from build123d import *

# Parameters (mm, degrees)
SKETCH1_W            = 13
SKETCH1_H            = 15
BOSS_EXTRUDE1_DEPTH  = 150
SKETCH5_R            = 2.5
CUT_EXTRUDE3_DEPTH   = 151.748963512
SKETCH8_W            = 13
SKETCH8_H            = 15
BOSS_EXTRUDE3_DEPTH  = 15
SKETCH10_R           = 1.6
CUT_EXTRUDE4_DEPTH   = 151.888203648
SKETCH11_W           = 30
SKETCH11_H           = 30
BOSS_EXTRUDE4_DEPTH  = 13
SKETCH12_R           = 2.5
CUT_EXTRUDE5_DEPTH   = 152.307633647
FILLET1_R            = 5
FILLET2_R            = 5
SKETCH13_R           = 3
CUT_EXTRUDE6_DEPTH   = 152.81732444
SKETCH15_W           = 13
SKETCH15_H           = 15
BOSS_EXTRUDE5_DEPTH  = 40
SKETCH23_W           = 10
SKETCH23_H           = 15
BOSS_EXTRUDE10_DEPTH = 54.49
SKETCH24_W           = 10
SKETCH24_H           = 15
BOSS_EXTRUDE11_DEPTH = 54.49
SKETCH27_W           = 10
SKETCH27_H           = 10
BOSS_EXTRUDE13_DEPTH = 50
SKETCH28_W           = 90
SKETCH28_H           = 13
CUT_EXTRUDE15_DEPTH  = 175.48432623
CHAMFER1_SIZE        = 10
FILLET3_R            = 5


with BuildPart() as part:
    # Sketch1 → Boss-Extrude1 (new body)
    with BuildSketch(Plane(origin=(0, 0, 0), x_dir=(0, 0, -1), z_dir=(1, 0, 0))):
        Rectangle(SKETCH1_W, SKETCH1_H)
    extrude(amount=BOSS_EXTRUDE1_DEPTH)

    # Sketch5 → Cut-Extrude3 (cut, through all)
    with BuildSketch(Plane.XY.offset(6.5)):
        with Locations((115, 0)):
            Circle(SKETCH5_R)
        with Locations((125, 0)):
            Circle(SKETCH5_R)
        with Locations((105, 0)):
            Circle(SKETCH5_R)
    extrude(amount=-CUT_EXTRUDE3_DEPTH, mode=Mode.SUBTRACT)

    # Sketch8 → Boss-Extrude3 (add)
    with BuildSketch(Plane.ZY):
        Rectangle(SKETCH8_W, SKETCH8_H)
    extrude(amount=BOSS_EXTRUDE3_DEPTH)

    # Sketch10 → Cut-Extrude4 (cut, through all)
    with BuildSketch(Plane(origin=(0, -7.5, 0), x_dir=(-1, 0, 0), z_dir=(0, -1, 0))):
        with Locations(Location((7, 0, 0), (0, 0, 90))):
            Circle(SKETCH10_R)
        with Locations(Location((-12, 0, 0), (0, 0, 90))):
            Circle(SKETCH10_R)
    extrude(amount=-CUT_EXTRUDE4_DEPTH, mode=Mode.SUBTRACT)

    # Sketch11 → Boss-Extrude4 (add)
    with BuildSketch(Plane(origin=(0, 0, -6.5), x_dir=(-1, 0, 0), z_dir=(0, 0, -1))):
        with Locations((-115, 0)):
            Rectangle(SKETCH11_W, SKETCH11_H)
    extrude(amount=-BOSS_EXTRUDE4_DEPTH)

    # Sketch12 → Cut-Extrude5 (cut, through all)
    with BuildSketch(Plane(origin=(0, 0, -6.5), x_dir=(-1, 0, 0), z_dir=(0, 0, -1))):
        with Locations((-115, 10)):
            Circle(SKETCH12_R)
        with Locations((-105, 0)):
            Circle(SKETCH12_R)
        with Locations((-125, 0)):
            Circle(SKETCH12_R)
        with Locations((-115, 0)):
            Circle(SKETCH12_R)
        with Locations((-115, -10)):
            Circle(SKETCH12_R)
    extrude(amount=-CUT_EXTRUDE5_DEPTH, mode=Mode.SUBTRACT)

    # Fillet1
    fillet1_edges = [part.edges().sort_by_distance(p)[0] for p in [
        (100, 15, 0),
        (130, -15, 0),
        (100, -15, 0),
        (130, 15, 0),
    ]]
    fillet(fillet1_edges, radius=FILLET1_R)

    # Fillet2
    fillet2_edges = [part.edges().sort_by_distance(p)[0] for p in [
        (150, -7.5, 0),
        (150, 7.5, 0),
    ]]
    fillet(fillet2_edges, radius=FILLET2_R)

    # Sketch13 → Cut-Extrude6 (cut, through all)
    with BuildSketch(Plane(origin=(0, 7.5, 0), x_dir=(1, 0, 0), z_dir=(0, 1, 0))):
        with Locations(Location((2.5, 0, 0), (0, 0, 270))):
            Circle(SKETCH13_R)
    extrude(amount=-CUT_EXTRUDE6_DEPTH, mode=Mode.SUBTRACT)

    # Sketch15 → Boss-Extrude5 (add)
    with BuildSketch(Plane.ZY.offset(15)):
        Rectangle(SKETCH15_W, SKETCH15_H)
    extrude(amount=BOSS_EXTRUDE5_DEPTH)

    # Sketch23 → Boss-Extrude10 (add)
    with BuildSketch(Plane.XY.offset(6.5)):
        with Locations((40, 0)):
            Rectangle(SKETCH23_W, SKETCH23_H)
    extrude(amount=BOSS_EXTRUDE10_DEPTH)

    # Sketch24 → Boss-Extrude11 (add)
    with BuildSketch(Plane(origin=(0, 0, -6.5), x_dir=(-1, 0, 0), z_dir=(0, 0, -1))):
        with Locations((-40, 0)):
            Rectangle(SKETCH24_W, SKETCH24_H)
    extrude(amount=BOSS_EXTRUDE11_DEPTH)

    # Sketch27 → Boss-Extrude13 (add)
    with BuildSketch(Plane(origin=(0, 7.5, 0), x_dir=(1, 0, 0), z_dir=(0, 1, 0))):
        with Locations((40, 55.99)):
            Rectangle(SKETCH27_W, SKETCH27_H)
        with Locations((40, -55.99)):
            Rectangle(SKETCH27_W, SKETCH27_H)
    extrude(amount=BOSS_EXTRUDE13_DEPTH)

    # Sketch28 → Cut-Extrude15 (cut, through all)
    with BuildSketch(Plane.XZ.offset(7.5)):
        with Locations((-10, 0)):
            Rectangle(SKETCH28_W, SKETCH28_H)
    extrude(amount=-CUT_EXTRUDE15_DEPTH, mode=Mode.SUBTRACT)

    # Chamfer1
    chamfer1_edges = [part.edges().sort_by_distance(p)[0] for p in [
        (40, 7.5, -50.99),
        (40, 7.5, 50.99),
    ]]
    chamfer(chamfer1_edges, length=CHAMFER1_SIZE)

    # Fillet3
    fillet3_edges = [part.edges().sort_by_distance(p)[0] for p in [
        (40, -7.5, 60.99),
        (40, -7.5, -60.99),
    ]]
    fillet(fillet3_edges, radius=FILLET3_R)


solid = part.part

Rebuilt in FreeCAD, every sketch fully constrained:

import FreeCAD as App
import Part
import Sketcher

V = App.Vector


def edges_at(feature, points):
    """Names of the edges that pass closest to the given points."""
    edges = feature.Shape.Edges
    near = lambda p: min(range(len(edges)), key=lambda i: edges[i].distToShape(Part.Vertex(*p))[0])
    return sorted({f"Edge{near(p) + 1}" for p in points})


def add_polygon(sketch, points):
    """Adds a closed chain of lines whose ends are joined by coincident constraints."""
    first, n = sketch.GeometryCount, len(points)
    for a, b in zip(points, points[1:] + points[:1]):
        sketch.addGeometry(Part.LineSegment(App.Vector(*a, 0), App.Vector(*b, 0)), False)
    for i in range(n):
        sketch.addConstraint(Sketcher.Constraint("Coincident", first + i, 2, first + (i + 1) % n, 1))

doc = App.newDocument("Part")
body = doc.addObject("PartDesign::Body", "Body")

# Sketch on YZ plane
sketch1 = doc.addObject("Sketcher::SketchObject", "Sketch")
body.addObject(sketch1)
sketch1.AttachmentSupport = (doc.YZ_Plane, [""])
sketch1.MapMode = "FlatFace"
add_polygon(sketch1, [(7.5, 6.5), (-7.5, 6.5), (-7.5, -6.5), (7.5, -6.5)])  # lines 0-3
sketch1.addConstraint(Sketcher.Constraint("Horizontal", 0))
sketch1.addConstraint(Sketcher.Constraint("Vertical", 1))
sketch1.addConstraint(Sketcher.Constraint("Horizontal", 2))
sketch1.addConstraint(Sketcher.Constraint("Vertical", 3))
sketch1.addConstraint(Sketcher.Constraint("Symmetric", 0, 2, 2, 2, -1, 1))
sketch1.addConstraint(Sketcher.Constraint("DistanceX", 0, 2, 0, 1, 15.0))
sketch1.addConstraint(Sketcher.Constraint("DistanceY", 1, 2, 1, 1, 13.0))
pad1 = doc.addObject("PartDesign::Pad", "Pad")
body.addObject(pad1)
pad1.Profile = sketch1
pad1.Length = 150

# Sketch on XY plane
sketch2 = doc.addObject("Sketcher::SketchObject", "Sketch001")
body.addObject(sketch2)
sketch2.AttachmentSupport = (doc.XY_Plane, [""])
sketch2.MapMode = "FlatFace"
sketch2.AttachmentOffset = App.Placement(V(0, 0, 6.5), App.Rotation())
sketch2.addGeometry(Part.Circle(V(115, 0, 0), V(0, 0, 1), 2.5), False)
sketch2.addGeometry(Part.Circle(V(125, 0, 0), V(0, 0, 1), 2.5), False)
sketch2.addGeometry(Part.Circle(V(105, 0, 0), V(0, 0, 1), 2.5), False)
sketch2.addConstraint(Sketcher.Constraint("Equal", 0, 1))
sketch2.addConstraint(Sketcher.Constraint("Equal", 1, 2))
sketch2.addConstraint(Sketcher.Constraint("PointOnObject", 0, 3, -1))
sketch2.addConstraint(Sketcher.Constraint("PointOnObject", 1, 3, -1))
sketch2.addConstraint(Sketcher.Constraint("PointOnObject", 2, 3, -1))
sketch2.addConstraint(Sketcher.Constraint("Diameter", 0, 5.0))
sketch2.addConstraint(Sketcher.Constraint("DistanceX", -1, 1, 0, 3, 115.0))
sketch2.addConstraint(Sketcher.Constraint("DistanceX", -1, 1, 1, 3, 125.0))
sketch2.addConstraint(Sketcher.Constraint("DistanceX", -1, 1, 2, 3, 105.0))
pocket1 = doc.addObject("PartDesign::Pocket", "Pocket")
body.addObject(pocket1)
pocket1.Profile = sketch2
pocket1.Type = "ThroughAll"

# Sketch on YZ plane
sketch3 = doc.addObject("Sketcher::SketchObject", "Sketch002")
body.addObject(sketch3)
sketch3.AttachmentSupport = (doc.YZ_Plane, [""])
sketch3.MapMode = "FlatFace"
add_polygon(sketch3, [(7.5, -6.5), (-7.5, -6.5), (-7.5, 6.5), (7.5, 6.5)])  # lines 0-3
sketch3.addConstraint(Sketcher.Constraint("Horizontal", 0))
sketch3.addConstraint(Sketcher.Constraint("Vertical", 1))
sketch3.addConstraint(Sketcher.Constraint("Horizontal", 2))
sketch3.addConstraint(Sketcher.Constraint("Vertical", 3))
sketch3.addConstraint(Sketcher.Constraint("Symmetric", 0, 2, 2, 2, -1, 1))
sketch3.addConstraint(Sketcher.Constraint("DistanceX", 0, 2, 0, 1, 15.0))
sketch3.addConstraint(Sketcher.Constraint("DistanceY", 1, 1, 1, 2, 13.0))
pad2 = doc.addObject("PartDesign::Pad", "Pad001")
body.addObject(pad2)
pad2.Profile = sketch3
pad2.Length = 15
pad2.Reversed = True

# Sketch on XZ plane
sketch4 = doc.addObject("Sketcher::SketchObject", "Sketch003")
body.addObject(sketch4)
sketch4.AttachmentSupport = (doc.XZ_Plane, [""])
sketch4.MapMode = "FlatFace"
sketch4.AttachmentOffset = App.Placement(V(0, 0, 7.5), App.Rotation())
sketch4.addGeometry(Part.Circle(V(-7, 0, 0), V(0, 0, 1), 1.6), False)
sketch4.addGeometry(Part.Circle(V(12, 0, 0), V(0, 0, 1), 1.6), False)
sketch4.addConstraint(Sketcher.Constraint("Equal", 0, 1))
sketch4.addConstraint(Sketcher.Constraint("PointOnObject", 0, 3, -1))
sketch4.addConstraint(Sketcher.Constraint("PointOnObject", 1, 3, -1))
sketch4.addConstraint(Sketcher.Constraint("Diameter", 0, 3.2))
sketch4.addConstraint(Sketcher.Constraint("DistanceX", 0, 3, -1, 1, 7.0))
sketch4.addConstraint(Sketcher.Constraint("DistanceX", -1, 1, 1, 3, 12.0))
pocket2 = doc.addObject("PartDesign::Pocket", "Pocket001")
body.addObject(pocket2)
pocket2.Profile = sketch4
pocket2.Type = "ThroughAll"

# Sketch on XY plane
sketch5 = doc.addObject("Sketcher::SketchObject", "Sketch004")
body.addObject(sketch5)
sketch5.AttachmentSupport = (doc.XY_Plane, [""])
sketch5.MapMode = "FlatFace"
sketch5.AttachmentOffset = App.Placement(V(0, 0, -6.5), App.Rotation())
add_polygon(sketch5, [(130, 15), (130, -15), (100, -15), (100, 15)])  # lines 0-3
sketch5.addConstraint(Sketcher.Constraint("Vertical", 0))
sketch5.addConstraint(Sketcher.Constraint("Horizontal", 1))
sketch5.addConstraint(Sketcher.Constraint("Vertical", 2))
sketch5.addConstraint(Sketcher.Constraint("Horizontal", 3))
sketch5.addConstraint(Sketcher.Constraint("Equal", 3, 0))
sketch5.addConstraint(Sketcher.Constraint("DistanceX", 1, 2, 1, 1, 30.0))
sketch5.addConstraint(Sketcher.Constraint("DistanceX", -1, 1, 0, 2, 130.0))
sketch5.addConstraint(Sketcher.Constraint("DistanceY", 0, 2, -1, 1, 15.0))
pad3 = doc.addObject("PartDesign::Pad", "Pad002")
body.addObject(pad3)
pad3.Profile = sketch5
pad3.Length = 13

# Sketch on XY plane
sketch6 = doc.addObject("Sketcher::SketchObject", "Sketch005")
body.addObject(sketch6)
sketch6.AttachmentSupport = (doc.XY_Plane, [""])
sketch6.MapMode = "FlatFace"
sketch6.AttachmentOffset = App.Placement(V(0, 0, -6.5), App.Rotation())
sketch6.addGeometry(Part.Circle(V(115, 10, 0), V(0, 0, 1), 2.5), False)
sketch6.addGeometry(Part.Circle(V(105, 0, 0), V(0, 0, 1), 2.5), False)
sketch6.addGeometry(Part.Circle(V(125, 0, 0), V(0, 0, 1), 2.5), False)
sketch6.addGeometry(Part.Circle(V(115, 0, 0), V(0, 0, 1), 2.5), False)
sketch6.addGeometry(Part.Circle(V(115, -10, 0), V(0, 0, 1), 2.5), False)
sketch6.addConstraint(Sketcher.Constraint("Equal", 0, 1))
sketch6.addConstraint(Sketcher.Constraint("Equal", 1, 2))
sketch6.addConstraint(Sketcher.Constraint("Equal", 2, 3))
sketch6.addConstraint(Sketcher.Constraint("Equal", 3, 4))
sketch6.addConstraint(Sketcher.Constraint("Symmetric", 0, 3, 4, 3, -1))
sketch6.addConstraint(Sketcher.Constraint("PointOnObject", 1, 3, -1))
sketch6.addConstraint(Sketcher.Constraint("PointOnObject", 2, 3, -1))
sketch6.addConstraint(Sketcher.Constraint("PointOnObject", 3, 3, -1))
sketch6.addConstraint(Sketcher.Constraint("Vertical", 0, 3, 3, 3))
sketch6.addConstraint(Sketcher.Constraint("Diameter", 0, 5.0))
sketch6.addConstraint(Sketcher.Constraint("DistanceX", -1, 1, 0, 3, 115.0))
sketch6.addConstraint(Sketcher.Constraint("DistanceY", -1, 1, 0, 3, 10.0))
sketch6.addConstraint(Sketcher.Constraint("DistanceX", -1, 1, 1, 3, 105.0))
sketch6.addConstraint(Sketcher.Constraint("DistanceX", -1, 1, 2, 3, 125.0))
pocket3 = doc.addObject("PartDesign::Pocket", "Pocket002")
body.addObject(pocket3)
pocket3.Profile = sketch6
pocket3.Type = "ThroughAll"
pocket3.Reversed = True
doc.recompute()

fillet = doc.addObject("PartDesign::Fillet", "Fillet")
body.addObject(fillet)
fillet.Base = (pocket3, edges_at(pocket3, [
    (100, 15, 0),
    (130, -15, 0),
    (100, -15, 0),
    (130, 15, 0),
]))
fillet.Radius = 5
doc.recompute()

fillet2 = doc.addObject("PartDesign::Fillet", "Fillet001")
body.addObject(fillet2)
fillet2.Base = (fillet, edges_at(fillet, [(150, -7.5, 0), (150, 7.5, 0)]))
fillet2.Radius = 5

# Sketch on XZ plane
sketch7 = doc.addObject("Sketcher::SketchObject", "Sketch006")
body.addObject(sketch7)
sketch7.AttachmentSupport = (doc.XZ_Plane, [""])
sketch7.MapMode = "FlatFace"
sketch7.AttachmentOffset = App.Placement(V(0, 0, -7.5), App.Rotation())
sketch7.addGeometry(Part.Circle(V(2.5, 0, 0), V(0, 0, 1), 3), False)
sketch7.addConstraint(Sketcher.Constraint("PointOnObject", 0, 3, -1))
sketch7.addConstraint(Sketcher.Constraint("Diameter", 0, 6.0))
sketch7.addConstraint(Sketcher.Constraint("DistanceX", -1, 1, 0, 3, 2.5))
pocket4 = doc.addObject("PartDesign::Pocket", "Pocket003")
body.addObject(pocket4)
pocket4.Profile = sketch7
pocket4.Type = "ThroughAll"
pocket4.Reversed = True

# Sketch on YZ plane
sketch8 = doc.addObject("Sketcher::SketchObject", "Sketch007")
body.addObject(sketch8)
sketch8.AttachmentSupport = (doc.YZ_Plane, [""])
sketch8.MapMode = "FlatFace"
sketch8.AttachmentOffset = App.Placement(V(0, 0, -15), App.Rotation())
add_polygon(sketch8, [(7.5, -6.5), (-7.5, -6.5), (-7.5, 6.5), (7.5, 6.5)])  # lines 0-3
sketch8.addConstraint(Sketcher.Constraint("Horizontal", 0))
sketch8.addConstraint(Sketcher.Constraint("Vertical", 1))
sketch8.addConstraint(Sketcher.Constraint("Horizontal", 2))
sketch8.addConstraint(Sketcher.Constraint("Vertical", 3))
sketch8.addConstraint(Sketcher.Constraint("Symmetric", 0, 2, 2, 2, -1, 1))
sketch8.addConstraint(Sketcher.Constraint("DistanceX", 0, 2, 0, 1, 15.0))
sketch8.addConstraint(Sketcher.Constraint("DistanceY", 1, 1, 1, 2, 13.0))
pad4 = doc.addObject("PartDesign::Pad", "Pad003")
body.addObject(pad4)
pad4.Profile = sketch8
pad4.Length = 40
pad4.Reversed = True

# Sketch on XY plane
sketch9 = doc.addObject("Sketcher::SketchObject", "Sketch008")
body.addObject(sketch9)
sketch9.AttachmentSupport = (doc.XY_Plane, [""])
sketch9.MapMode = "FlatFace"
sketch9.AttachmentOffset = App.Placement(V(0, 0, 6.5), App.Rotation())
add_polygon(sketch9, [(35, 7.5), (35, -7.5), (45, -7.5), (45, 7.5)])  # lines 0-3
sketch9.addConstraint(Sketcher.Constraint("Vertical", 0))
sketch9.addConstraint(Sketcher.Constraint("Horizontal", 1))
sketch9.addConstraint(Sketcher.Constraint("Vertical", 2))
sketch9.addConstraint(Sketcher.Constraint("Horizontal", 3))
sketch9.addConstraint(Sketcher.Constraint("DistanceX", 1, 1, 1, 2, 10.0))
sketch9.addConstraint(Sketcher.Constraint("DistanceY", 0, 2, 0, 1, 15.0))
sketch9.addConstraint(Sketcher.Constraint("DistanceX", -1, 1, 0, 2, 35.0))
sketch9.addConstraint(Sketcher.Constraint("DistanceY", 0, 2, -1, 1, 7.5))
pad5 = doc.addObject("PartDesign::Pad", "Pad004")
body.addObject(pad5)
pad5.Profile = sketch9
pad5.Length = 54.49

# Sketch on XY plane
sketch10 = doc.addObject("Sketcher::SketchObject", "Sketch009")
body.addObject(sketch10)
sketch10.AttachmentSupport = (doc.XY_Plane, [""])
sketch10.MapMode = "FlatFace"
sketch10.AttachmentOffset = App.Placement(V(0, 0, -6.5), App.Rotation())
add_polygon(sketch10, [(45, 7.5), (45, -7.5), (35, -7.5), (35, 7.5)])  # lines 0-3
sketch10.addConstraint(Sketcher.Constraint("Vertical", 0))
sketch10.addConstraint(Sketcher.Constraint("Horizontal", 1))
sketch10.addConstraint(Sketcher.Constraint("Vertical", 2))
sketch10.addConstraint(Sketcher.Constraint("Horizontal", 3))
sketch10.addConstraint(Sketcher.Constraint("DistanceX", 1, 2, 1, 1, 10.0))
sketch10.addConstraint(Sketcher.Constraint("DistanceY", 0, 2, 0, 1, 15.0))
sketch10.addConstraint(Sketcher.Constraint("DistanceX", -1, 1, 0, 2, 45.0))
sketch10.addConstraint(Sketcher.Constraint("DistanceY", 0, 2, -1, 1, 7.5))
pad6 = doc.addObject("PartDesign::Pad", "Pad005")
body.addObject(pad6)
pad6.Profile = sketch10
pad6.Length = 54.49
pad6.Reversed = True

# Sketch on XZ plane
sketch11 = doc.addObject("Sketcher::SketchObject", "Sketch010")
body.addObject(sketch11)
sketch11.AttachmentSupport = (doc.XZ_Plane, [""])
sketch11.MapMode = "FlatFace"
sketch11.AttachmentOffset = App.Placement(V(0, 0, -7.5), App.Rotation())
add_polygon(sketch11, [(35, -60.99), (35, -50.99), (45, -50.99), (45, -60.99)])  # lines 0-3
add_polygon(sketch11, [(35, 50.99), (35, 60.99), (45, 60.99), (45, 50.99)])  # lines 4-7
sketch11.addConstraint(Sketcher.Constraint("Vertical", 0))
sketch11.addConstraint(Sketcher.Constraint("Horizontal", 1))
sketch11.addConstraint(Sketcher.Constraint("Vertical", 2))
sketch11.addConstraint(Sketcher.Constraint("Horizontal", 3))
sketch11.addConstraint(Sketcher.Constraint("Vertical", 4))
sketch11.addConstraint(Sketcher.Constraint("Horizontal", 5))
sketch11.addConstraint(Sketcher.Constraint("Vertical", 6))
sketch11.addConstraint(Sketcher.Constraint("Horizontal", 7))
sketch11.addConstraint(Sketcher.Constraint("Symmetric", 3, 2, 4, 2, -1))
sketch11.addConstraint(Sketcher.Constraint("Symmetric", 1, 2, 6, 2, -1))
sketch11.addConstraint(Sketcher.Constraint("Equal", 7, 0))
sketch11.addConstraint(Sketcher.Constraint("DistanceX", 1, 1, 1, 2, 10.0))
sketch11.addConstraint(Sketcher.Constraint("DistanceX", -1, 1, 0, 2, 35.0))
sketch11.addConstraint(Sketcher.Constraint("DistanceY", 0, 2, -1, 1, 50.99))
pad7 = doc.addObject("PartDesign::Pad", "Pad006")
body.addObject(pad7)
pad7.Profile = sketch11
pad7.Length = 50
pad7.Reversed = True

# Sketch on XZ plane
sketch12 = doc.addObject("Sketcher::SketchObject", "Sketch011")
body.addObject(sketch12)
sketch12.AttachmentSupport = (doc.XZ_Plane, [""])
sketch12.MapMode = "FlatFace"
sketch12.AttachmentOffset = App.Placement(V(0, 0, 7.5), App.Rotation())
add_polygon(sketch12, [(-55, 6.5), (-55, -6.5), (35, -6.5), (35, 6.5)])  # lines 0-3
sketch12.addConstraint(Sketcher.Constraint("Vertical", 0))
sketch12.addConstraint(Sketcher.Constraint("Horizontal", 1))
sketch12.addConstraint(Sketcher.Constraint("Vertical", 2))
sketch12.addConstraint(Sketcher.Constraint("Horizontal", 3))
sketch12.addConstraint(Sketcher.Constraint("DistanceX", 1, 1, 1, 2, 90.0))
sketch12.addConstraint(Sketcher.Constraint("DistanceY", 0, 2, 0, 1, 13.0))
sketch12.addConstraint(Sketcher.Constraint("DistanceX", 0, 2, -1, 1, 55.0))
sketch12.addConstraint(Sketcher.Constraint("DistanceY", 0, 2, -1, 1, 6.5))
pocket5 = doc.addObject("PartDesign::Pocket", "Pocket004")
body.addObject(pocket5)
pocket5.Profile = sketch12
pocket5.Type = "ThroughAll"
doc.recompute()

chamfer = doc.addObject("PartDesign::Chamfer", "Chamfer")
body.addObject(chamfer)
chamfer.Base = (pocket5, edges_at(pocket5, [(40, 7.5, -50.99), (40, 7.5, 50.99)]))
chamfer.Size = 10
doc.recompute()

fillet3 = doc.addObject("PartDesign::Fillet", "Fillet002")
body.addObject(fillet3)
fillet3.Base = (chamfer, edges_at(chamfer, [(40, -7.5, 60.99), (40, -7.5, -60.99)]))
fillet3.Radius = 5

doc.recompute()
